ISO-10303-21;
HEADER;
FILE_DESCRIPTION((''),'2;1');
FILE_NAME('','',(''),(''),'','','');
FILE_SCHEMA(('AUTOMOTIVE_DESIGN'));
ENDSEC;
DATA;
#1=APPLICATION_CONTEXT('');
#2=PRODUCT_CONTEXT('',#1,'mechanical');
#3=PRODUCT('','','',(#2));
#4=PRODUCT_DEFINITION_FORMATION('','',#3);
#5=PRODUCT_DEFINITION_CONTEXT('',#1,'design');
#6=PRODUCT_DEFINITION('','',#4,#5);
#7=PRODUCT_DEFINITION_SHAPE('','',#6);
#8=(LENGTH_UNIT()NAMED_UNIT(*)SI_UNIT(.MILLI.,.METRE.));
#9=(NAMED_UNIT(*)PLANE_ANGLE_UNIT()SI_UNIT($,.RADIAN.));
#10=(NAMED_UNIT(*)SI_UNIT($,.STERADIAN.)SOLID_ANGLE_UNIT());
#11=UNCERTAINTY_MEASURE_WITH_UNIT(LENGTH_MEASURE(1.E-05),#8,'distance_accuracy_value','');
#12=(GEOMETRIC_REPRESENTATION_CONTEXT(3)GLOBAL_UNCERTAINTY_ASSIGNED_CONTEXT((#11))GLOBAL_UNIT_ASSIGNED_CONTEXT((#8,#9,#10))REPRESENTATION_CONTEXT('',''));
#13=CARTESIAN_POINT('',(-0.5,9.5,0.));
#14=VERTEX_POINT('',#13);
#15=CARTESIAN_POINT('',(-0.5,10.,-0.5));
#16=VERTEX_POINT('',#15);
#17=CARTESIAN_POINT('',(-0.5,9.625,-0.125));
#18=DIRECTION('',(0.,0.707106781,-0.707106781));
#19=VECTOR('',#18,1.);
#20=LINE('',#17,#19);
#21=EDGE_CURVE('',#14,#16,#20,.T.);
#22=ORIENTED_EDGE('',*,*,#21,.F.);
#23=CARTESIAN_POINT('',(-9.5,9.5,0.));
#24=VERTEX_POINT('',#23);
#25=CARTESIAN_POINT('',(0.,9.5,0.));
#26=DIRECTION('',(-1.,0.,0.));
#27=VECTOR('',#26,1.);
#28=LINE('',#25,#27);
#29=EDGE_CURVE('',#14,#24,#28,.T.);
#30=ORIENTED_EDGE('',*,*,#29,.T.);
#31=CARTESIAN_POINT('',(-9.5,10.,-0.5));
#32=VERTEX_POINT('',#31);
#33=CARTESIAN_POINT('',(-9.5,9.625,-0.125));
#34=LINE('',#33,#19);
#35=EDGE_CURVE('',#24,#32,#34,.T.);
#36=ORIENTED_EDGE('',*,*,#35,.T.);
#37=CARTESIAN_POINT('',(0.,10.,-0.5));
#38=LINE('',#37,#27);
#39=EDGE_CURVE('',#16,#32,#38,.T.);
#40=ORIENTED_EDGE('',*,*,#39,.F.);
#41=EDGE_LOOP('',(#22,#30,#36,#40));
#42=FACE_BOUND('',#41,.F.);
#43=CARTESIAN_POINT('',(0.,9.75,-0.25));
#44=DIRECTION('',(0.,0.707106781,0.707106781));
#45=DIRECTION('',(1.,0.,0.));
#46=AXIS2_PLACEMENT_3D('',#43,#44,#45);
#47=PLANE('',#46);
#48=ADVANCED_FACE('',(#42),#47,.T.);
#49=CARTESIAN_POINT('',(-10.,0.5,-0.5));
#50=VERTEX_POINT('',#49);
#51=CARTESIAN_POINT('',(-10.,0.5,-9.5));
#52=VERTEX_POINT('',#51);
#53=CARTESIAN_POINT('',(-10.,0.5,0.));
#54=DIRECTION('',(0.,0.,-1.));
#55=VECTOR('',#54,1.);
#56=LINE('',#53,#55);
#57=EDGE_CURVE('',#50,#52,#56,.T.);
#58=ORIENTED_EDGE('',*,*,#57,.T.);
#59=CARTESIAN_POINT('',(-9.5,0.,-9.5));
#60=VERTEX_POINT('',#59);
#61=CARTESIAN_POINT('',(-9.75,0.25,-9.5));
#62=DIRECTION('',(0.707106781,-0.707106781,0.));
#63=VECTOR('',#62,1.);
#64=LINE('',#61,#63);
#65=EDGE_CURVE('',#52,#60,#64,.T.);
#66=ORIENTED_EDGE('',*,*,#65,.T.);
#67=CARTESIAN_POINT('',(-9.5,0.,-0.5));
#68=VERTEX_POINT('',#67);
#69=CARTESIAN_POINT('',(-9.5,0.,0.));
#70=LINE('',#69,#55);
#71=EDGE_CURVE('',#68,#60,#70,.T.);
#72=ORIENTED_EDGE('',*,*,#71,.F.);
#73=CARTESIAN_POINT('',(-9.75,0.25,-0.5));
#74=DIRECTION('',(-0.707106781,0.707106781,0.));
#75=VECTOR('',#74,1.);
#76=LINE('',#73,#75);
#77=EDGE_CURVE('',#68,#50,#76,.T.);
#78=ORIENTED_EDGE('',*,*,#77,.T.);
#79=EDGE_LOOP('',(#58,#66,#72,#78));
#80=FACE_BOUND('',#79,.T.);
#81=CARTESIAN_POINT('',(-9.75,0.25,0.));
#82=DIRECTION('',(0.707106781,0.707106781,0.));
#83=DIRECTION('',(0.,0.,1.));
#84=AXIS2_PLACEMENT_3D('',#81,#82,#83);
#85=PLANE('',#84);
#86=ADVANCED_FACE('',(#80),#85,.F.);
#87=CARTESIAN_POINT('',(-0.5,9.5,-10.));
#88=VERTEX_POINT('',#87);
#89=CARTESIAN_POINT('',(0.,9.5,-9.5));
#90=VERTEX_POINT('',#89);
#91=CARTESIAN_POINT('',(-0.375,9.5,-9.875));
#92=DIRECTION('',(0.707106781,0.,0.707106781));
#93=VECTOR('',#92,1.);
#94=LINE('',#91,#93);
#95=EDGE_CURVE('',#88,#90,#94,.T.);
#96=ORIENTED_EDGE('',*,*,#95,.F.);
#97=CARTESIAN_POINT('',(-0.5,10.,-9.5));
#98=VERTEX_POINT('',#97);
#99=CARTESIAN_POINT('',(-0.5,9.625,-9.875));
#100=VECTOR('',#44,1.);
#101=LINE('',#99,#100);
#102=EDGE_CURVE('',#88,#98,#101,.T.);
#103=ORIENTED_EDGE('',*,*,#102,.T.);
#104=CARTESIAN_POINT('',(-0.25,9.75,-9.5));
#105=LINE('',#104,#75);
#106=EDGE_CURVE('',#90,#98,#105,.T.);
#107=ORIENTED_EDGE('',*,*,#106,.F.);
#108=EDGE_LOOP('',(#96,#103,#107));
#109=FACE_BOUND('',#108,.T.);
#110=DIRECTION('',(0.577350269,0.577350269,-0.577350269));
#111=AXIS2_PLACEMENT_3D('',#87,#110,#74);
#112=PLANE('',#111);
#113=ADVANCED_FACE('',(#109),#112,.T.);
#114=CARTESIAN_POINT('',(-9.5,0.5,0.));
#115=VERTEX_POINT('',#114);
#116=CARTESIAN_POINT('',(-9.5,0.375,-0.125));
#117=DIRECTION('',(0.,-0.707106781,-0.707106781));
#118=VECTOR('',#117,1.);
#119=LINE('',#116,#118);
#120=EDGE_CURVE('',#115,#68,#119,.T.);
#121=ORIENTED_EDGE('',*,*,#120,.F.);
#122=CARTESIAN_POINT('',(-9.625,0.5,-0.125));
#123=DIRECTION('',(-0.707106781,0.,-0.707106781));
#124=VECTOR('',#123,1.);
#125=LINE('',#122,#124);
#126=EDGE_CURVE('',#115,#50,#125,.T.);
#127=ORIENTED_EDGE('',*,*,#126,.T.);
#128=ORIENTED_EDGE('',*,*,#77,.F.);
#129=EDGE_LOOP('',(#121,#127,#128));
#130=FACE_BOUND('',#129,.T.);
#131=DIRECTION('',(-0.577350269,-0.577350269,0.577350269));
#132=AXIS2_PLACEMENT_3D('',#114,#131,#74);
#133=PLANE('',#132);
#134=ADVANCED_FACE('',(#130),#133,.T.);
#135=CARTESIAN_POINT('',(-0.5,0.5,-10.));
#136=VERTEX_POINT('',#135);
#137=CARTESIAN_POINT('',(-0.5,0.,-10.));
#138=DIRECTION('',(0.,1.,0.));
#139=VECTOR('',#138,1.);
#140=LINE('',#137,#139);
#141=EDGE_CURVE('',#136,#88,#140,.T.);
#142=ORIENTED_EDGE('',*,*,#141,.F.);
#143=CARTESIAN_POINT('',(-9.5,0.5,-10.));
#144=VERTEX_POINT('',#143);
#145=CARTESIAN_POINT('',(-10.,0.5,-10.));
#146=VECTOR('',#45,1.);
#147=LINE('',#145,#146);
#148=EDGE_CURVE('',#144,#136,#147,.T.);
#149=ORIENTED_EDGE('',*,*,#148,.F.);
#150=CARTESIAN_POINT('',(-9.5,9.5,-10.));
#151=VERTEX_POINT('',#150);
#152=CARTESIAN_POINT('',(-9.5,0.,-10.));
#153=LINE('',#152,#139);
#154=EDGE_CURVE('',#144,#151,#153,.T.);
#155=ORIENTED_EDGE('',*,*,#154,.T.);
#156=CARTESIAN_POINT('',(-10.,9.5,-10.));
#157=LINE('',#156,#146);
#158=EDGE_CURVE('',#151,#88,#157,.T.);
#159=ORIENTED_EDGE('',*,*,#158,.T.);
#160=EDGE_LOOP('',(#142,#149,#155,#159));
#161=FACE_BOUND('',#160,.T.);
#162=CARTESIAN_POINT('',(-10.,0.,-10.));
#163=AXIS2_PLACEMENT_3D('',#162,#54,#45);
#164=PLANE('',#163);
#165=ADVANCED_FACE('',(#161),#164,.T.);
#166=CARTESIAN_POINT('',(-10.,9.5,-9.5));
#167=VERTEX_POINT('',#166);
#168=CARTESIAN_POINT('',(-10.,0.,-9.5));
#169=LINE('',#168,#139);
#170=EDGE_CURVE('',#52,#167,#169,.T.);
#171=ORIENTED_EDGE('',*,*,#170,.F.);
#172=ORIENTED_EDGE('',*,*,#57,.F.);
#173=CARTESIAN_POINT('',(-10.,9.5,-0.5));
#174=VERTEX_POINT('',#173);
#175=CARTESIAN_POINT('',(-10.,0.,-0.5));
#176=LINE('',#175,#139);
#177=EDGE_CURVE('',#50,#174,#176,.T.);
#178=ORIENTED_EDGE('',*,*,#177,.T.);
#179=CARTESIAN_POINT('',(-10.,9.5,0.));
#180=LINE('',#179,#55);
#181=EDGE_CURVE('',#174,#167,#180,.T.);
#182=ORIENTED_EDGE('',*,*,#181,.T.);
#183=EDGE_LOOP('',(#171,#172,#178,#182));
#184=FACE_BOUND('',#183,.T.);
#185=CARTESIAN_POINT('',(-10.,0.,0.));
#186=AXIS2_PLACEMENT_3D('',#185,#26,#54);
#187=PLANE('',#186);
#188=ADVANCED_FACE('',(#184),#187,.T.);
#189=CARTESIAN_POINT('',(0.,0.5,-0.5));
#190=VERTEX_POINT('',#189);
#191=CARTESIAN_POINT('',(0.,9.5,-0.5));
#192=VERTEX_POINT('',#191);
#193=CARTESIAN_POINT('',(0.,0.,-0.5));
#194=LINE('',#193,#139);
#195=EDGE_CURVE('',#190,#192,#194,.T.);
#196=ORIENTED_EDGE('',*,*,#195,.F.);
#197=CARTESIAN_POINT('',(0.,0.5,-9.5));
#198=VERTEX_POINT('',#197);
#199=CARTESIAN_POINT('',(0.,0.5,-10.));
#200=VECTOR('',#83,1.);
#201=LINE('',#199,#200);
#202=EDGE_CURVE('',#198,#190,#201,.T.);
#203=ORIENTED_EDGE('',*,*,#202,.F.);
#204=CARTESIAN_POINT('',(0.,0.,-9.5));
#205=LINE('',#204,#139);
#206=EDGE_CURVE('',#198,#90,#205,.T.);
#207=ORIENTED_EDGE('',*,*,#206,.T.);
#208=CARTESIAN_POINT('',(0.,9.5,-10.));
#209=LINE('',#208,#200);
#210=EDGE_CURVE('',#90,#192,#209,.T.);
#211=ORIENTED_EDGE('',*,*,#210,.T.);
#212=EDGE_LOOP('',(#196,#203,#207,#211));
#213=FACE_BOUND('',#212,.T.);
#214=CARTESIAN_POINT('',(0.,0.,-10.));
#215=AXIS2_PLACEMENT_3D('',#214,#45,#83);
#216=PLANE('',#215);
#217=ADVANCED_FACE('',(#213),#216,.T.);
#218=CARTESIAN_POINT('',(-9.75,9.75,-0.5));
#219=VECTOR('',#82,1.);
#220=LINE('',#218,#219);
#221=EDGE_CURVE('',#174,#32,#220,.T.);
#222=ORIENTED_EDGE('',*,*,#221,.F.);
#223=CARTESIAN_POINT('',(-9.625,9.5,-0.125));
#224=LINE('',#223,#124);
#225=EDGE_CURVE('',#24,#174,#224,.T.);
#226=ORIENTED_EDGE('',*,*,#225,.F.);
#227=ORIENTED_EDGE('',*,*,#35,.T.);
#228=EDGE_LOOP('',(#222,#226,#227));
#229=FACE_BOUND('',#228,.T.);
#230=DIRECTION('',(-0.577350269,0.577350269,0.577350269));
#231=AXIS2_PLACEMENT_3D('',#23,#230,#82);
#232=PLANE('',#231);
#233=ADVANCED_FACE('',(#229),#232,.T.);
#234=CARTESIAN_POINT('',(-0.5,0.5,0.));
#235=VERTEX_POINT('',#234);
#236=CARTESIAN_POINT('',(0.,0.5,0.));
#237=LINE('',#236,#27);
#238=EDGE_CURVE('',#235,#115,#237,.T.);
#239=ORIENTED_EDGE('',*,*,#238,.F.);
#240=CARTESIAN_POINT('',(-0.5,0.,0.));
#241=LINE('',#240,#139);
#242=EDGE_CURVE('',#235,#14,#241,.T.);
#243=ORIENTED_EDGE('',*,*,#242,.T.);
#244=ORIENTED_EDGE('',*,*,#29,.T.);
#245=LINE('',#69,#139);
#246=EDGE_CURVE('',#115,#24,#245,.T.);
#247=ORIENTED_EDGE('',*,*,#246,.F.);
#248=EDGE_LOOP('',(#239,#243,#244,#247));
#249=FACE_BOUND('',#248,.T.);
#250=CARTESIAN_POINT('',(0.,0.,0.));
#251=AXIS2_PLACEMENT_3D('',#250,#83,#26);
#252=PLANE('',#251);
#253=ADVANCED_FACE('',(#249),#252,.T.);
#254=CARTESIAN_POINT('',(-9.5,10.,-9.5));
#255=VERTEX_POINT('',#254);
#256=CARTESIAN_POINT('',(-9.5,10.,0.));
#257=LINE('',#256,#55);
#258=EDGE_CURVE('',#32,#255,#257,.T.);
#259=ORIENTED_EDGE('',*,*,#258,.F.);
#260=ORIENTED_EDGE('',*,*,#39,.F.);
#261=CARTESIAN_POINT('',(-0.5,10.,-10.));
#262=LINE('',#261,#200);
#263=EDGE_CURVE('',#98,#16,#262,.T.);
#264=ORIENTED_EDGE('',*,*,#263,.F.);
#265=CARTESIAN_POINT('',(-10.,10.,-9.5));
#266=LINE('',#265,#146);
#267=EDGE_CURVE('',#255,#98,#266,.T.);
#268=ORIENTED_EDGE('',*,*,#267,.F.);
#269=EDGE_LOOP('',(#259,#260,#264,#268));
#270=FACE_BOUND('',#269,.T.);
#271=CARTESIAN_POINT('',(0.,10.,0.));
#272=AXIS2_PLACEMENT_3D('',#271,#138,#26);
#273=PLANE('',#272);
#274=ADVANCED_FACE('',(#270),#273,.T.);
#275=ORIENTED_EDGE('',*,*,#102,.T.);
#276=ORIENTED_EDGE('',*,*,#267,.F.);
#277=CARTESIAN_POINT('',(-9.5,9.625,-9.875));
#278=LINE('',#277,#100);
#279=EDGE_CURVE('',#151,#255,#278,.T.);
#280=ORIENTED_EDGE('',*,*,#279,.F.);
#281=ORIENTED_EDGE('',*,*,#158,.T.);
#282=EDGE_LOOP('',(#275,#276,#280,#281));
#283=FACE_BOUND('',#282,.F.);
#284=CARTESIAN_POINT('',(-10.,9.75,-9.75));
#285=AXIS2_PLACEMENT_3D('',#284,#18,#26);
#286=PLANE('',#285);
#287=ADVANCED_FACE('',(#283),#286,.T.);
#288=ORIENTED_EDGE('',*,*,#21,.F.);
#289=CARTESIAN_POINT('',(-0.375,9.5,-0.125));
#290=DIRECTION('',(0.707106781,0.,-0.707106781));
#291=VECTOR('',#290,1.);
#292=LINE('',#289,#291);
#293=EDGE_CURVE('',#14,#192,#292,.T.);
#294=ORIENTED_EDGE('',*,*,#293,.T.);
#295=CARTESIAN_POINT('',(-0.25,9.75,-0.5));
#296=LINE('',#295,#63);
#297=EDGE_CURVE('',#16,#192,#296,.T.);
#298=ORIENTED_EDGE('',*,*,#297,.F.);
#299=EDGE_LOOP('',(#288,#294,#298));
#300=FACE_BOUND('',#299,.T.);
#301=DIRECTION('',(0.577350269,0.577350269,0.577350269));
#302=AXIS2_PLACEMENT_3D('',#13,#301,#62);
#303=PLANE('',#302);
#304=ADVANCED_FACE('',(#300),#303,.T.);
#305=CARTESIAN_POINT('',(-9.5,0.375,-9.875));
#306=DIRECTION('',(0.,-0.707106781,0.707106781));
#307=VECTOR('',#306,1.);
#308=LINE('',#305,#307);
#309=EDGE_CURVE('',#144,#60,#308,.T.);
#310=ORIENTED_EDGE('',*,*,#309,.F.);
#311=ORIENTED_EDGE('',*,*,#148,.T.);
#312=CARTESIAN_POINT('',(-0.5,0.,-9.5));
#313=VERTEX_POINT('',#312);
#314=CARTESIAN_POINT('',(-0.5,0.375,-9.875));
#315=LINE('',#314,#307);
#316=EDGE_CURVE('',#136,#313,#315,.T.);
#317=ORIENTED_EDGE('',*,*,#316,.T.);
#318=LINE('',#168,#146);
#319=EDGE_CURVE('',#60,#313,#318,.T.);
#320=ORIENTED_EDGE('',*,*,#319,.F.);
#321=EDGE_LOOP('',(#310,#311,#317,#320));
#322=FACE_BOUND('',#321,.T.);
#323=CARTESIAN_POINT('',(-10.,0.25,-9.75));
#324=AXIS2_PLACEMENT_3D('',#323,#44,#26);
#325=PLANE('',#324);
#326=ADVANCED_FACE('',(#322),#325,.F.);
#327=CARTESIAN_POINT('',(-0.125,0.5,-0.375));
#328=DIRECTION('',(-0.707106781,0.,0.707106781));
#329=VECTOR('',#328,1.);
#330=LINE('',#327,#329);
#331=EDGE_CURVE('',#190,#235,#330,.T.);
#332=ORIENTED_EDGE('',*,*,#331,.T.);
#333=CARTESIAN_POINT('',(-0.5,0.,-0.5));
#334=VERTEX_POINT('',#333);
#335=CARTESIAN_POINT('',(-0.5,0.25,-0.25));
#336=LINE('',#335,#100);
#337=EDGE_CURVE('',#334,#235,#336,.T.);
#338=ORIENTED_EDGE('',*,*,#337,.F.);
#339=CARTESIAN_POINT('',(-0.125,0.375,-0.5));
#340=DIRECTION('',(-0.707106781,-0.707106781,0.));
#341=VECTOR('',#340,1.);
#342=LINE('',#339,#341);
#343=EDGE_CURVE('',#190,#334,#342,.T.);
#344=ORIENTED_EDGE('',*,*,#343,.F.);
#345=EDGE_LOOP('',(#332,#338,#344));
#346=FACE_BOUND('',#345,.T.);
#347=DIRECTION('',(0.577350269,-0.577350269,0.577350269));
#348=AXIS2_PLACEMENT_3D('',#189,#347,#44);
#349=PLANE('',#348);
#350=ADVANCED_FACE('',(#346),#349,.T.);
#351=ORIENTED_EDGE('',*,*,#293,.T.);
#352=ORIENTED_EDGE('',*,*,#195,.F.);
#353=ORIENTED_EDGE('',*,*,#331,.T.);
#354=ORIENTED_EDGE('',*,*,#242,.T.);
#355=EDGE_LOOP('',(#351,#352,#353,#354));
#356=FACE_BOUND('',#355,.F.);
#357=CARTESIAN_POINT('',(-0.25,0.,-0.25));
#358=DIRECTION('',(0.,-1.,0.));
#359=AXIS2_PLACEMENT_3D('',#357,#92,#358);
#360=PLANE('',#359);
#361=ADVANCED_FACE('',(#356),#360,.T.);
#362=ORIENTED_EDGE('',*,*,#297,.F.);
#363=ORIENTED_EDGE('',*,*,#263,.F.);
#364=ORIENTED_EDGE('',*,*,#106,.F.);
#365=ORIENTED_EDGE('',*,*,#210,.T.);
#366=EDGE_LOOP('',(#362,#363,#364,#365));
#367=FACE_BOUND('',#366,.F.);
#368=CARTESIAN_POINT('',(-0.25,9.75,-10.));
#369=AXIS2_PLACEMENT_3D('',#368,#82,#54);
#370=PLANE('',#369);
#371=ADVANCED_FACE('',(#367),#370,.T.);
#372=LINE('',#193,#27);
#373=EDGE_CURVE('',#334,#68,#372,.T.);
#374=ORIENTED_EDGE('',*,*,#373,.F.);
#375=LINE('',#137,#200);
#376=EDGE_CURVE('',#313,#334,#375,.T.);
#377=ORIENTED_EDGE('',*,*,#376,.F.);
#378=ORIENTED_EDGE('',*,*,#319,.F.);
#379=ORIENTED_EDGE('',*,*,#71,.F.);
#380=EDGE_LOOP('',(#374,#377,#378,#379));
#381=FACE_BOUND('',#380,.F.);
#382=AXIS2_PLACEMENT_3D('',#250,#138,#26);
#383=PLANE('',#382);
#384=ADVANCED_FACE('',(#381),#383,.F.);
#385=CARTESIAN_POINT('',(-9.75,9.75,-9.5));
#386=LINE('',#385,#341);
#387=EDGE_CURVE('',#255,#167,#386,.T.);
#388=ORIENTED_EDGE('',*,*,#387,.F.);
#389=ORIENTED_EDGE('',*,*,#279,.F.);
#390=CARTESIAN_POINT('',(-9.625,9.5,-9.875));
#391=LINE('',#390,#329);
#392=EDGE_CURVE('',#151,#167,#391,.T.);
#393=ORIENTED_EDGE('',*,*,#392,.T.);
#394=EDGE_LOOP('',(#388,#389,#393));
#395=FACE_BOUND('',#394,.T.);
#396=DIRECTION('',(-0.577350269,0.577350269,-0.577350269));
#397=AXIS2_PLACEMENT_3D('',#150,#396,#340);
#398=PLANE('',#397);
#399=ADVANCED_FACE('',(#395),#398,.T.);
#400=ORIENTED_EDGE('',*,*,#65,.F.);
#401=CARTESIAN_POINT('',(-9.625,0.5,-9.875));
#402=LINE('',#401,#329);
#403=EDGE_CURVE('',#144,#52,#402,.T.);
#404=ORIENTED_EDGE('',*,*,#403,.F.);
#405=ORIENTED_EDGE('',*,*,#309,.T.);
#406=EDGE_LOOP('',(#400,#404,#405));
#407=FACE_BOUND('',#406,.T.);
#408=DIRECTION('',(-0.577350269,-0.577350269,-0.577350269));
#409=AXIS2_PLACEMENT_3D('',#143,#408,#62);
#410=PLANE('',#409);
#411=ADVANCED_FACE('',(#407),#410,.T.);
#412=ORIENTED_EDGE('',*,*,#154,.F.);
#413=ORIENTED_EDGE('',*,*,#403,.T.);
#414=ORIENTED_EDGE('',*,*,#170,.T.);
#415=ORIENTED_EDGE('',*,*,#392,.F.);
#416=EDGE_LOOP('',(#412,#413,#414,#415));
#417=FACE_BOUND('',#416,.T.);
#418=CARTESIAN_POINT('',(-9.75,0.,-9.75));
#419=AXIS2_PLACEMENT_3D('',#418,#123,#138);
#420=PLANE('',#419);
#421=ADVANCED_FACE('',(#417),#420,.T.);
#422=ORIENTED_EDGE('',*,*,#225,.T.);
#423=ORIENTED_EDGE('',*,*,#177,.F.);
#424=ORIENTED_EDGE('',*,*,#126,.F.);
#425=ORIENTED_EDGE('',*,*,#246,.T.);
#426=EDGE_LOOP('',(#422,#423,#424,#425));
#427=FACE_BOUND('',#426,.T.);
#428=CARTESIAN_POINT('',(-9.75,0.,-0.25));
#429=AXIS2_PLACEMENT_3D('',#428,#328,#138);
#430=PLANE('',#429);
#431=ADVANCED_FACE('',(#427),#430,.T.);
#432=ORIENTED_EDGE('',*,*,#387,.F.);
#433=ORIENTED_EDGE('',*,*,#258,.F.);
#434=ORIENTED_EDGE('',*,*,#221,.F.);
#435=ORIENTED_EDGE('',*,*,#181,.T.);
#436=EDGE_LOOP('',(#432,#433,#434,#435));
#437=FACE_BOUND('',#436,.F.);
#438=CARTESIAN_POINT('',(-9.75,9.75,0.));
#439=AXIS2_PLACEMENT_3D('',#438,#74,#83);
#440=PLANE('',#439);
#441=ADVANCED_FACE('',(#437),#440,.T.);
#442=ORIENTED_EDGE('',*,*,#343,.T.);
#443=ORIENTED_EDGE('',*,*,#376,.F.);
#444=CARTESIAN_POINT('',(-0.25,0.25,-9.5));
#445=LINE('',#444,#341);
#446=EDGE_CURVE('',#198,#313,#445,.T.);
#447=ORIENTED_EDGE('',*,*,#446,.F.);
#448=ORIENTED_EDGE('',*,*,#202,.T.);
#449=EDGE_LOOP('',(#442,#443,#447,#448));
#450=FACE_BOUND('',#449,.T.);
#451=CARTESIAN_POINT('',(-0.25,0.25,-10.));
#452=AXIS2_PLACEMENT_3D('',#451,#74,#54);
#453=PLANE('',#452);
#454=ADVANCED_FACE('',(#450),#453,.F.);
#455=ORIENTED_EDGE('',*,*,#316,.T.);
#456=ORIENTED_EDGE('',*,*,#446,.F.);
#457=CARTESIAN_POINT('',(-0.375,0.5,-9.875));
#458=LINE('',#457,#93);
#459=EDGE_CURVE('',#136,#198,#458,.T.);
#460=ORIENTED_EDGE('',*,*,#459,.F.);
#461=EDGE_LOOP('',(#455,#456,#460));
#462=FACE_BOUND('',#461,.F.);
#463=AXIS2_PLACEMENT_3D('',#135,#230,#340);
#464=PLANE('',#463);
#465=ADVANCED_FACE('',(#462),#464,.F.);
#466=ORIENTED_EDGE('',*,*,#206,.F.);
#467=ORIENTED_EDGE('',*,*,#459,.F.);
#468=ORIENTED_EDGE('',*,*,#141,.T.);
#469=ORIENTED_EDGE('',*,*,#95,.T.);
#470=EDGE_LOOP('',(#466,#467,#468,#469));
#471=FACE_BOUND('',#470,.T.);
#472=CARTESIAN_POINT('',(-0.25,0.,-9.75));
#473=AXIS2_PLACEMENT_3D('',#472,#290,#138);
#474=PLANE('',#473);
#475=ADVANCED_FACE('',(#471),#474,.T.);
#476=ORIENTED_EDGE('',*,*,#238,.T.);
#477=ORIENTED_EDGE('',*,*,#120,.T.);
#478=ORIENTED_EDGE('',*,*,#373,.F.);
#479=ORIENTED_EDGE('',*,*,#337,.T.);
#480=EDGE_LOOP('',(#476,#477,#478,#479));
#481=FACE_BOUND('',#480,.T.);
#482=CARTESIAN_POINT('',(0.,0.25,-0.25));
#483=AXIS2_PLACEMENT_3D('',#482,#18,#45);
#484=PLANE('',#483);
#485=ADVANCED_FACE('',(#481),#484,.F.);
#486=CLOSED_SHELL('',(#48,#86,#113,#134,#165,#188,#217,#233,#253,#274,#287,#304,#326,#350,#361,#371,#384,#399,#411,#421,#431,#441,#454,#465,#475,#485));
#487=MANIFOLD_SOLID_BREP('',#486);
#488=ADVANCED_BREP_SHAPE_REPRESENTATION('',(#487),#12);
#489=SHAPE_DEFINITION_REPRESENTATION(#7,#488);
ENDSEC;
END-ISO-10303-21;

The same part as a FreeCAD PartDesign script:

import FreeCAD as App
import Part
import Sketcher
from FreeCAD import Vector


def add_polygon(sketch, points):
    """Adds a closed chain of lines whose ends are joined by coincident constraints."""
    first, n = sketch.GeometryCount, len(points)
    for a, b in zip(points, points[1:] + points[:1]):
        sketch.addGeometry(Part.LineSegment(App.Vector(*a, 0), App.Vector(*b, 0)), False)
    for i in range(n):
        sketch.addConstraint(Sketcher.Constraint("Coincident", first + i, 2, first + (i + 1) % n, 1))

doc = App.newDocument("Part")
body = doc.addObject("PartDesign::Body", "Body")

# Sketch on XZ plane
sketch1 = doc.addObject("Sketcher::SketchObject", "Sketch")
body.addObject(sketch1)
sketch1.AttachmentSupport = (doc.XZ_Plane, [""])
sketch1.MapMode = "FlatFace"
add_polygon(sketch1, [(-10, 0), (0, 0), (0, -10), (-10, -10)])  # lines 0-3
sketch1.addConstraint(Sketcher.Constraint("Horizontal", 0))
sketch1.addConstraint(Sketcher.Constraint("Vertical", 1))
sketch1.addConstraint(Sketcher.Constraint("Horizontal", 2))
sketch1.addConstraint(Sketcher.Constraint("Vertical", 3))
sketch1.addConstraint(Sketcher.Constraint("Coincident", 0, 2, -1, 1))
sketch1.addConstraint(Sketcher.Constraint("Equal", 2, 1))
sketch1.addConstraint(Sketcher.Constraint("DistanceX", 0, 1, 0, 2, 10.0))
pad1 = doc.addObject("PartDesign::Pad", "Pad")
body.addObject(pad1)
pad1.Profile = sketch1
pad1.Length = 10
pad1.Reversed = True
doc.recompute()

chamfer = doc.addObject("PartDesign::Chamfer", "Chamfer")
body.addObject(chamfer)
chamfer.Base = (pad1, ["Edge1"])
chamfer.UseAllEdges = True
chamfer.Size = 0.5

doc.recompute()
